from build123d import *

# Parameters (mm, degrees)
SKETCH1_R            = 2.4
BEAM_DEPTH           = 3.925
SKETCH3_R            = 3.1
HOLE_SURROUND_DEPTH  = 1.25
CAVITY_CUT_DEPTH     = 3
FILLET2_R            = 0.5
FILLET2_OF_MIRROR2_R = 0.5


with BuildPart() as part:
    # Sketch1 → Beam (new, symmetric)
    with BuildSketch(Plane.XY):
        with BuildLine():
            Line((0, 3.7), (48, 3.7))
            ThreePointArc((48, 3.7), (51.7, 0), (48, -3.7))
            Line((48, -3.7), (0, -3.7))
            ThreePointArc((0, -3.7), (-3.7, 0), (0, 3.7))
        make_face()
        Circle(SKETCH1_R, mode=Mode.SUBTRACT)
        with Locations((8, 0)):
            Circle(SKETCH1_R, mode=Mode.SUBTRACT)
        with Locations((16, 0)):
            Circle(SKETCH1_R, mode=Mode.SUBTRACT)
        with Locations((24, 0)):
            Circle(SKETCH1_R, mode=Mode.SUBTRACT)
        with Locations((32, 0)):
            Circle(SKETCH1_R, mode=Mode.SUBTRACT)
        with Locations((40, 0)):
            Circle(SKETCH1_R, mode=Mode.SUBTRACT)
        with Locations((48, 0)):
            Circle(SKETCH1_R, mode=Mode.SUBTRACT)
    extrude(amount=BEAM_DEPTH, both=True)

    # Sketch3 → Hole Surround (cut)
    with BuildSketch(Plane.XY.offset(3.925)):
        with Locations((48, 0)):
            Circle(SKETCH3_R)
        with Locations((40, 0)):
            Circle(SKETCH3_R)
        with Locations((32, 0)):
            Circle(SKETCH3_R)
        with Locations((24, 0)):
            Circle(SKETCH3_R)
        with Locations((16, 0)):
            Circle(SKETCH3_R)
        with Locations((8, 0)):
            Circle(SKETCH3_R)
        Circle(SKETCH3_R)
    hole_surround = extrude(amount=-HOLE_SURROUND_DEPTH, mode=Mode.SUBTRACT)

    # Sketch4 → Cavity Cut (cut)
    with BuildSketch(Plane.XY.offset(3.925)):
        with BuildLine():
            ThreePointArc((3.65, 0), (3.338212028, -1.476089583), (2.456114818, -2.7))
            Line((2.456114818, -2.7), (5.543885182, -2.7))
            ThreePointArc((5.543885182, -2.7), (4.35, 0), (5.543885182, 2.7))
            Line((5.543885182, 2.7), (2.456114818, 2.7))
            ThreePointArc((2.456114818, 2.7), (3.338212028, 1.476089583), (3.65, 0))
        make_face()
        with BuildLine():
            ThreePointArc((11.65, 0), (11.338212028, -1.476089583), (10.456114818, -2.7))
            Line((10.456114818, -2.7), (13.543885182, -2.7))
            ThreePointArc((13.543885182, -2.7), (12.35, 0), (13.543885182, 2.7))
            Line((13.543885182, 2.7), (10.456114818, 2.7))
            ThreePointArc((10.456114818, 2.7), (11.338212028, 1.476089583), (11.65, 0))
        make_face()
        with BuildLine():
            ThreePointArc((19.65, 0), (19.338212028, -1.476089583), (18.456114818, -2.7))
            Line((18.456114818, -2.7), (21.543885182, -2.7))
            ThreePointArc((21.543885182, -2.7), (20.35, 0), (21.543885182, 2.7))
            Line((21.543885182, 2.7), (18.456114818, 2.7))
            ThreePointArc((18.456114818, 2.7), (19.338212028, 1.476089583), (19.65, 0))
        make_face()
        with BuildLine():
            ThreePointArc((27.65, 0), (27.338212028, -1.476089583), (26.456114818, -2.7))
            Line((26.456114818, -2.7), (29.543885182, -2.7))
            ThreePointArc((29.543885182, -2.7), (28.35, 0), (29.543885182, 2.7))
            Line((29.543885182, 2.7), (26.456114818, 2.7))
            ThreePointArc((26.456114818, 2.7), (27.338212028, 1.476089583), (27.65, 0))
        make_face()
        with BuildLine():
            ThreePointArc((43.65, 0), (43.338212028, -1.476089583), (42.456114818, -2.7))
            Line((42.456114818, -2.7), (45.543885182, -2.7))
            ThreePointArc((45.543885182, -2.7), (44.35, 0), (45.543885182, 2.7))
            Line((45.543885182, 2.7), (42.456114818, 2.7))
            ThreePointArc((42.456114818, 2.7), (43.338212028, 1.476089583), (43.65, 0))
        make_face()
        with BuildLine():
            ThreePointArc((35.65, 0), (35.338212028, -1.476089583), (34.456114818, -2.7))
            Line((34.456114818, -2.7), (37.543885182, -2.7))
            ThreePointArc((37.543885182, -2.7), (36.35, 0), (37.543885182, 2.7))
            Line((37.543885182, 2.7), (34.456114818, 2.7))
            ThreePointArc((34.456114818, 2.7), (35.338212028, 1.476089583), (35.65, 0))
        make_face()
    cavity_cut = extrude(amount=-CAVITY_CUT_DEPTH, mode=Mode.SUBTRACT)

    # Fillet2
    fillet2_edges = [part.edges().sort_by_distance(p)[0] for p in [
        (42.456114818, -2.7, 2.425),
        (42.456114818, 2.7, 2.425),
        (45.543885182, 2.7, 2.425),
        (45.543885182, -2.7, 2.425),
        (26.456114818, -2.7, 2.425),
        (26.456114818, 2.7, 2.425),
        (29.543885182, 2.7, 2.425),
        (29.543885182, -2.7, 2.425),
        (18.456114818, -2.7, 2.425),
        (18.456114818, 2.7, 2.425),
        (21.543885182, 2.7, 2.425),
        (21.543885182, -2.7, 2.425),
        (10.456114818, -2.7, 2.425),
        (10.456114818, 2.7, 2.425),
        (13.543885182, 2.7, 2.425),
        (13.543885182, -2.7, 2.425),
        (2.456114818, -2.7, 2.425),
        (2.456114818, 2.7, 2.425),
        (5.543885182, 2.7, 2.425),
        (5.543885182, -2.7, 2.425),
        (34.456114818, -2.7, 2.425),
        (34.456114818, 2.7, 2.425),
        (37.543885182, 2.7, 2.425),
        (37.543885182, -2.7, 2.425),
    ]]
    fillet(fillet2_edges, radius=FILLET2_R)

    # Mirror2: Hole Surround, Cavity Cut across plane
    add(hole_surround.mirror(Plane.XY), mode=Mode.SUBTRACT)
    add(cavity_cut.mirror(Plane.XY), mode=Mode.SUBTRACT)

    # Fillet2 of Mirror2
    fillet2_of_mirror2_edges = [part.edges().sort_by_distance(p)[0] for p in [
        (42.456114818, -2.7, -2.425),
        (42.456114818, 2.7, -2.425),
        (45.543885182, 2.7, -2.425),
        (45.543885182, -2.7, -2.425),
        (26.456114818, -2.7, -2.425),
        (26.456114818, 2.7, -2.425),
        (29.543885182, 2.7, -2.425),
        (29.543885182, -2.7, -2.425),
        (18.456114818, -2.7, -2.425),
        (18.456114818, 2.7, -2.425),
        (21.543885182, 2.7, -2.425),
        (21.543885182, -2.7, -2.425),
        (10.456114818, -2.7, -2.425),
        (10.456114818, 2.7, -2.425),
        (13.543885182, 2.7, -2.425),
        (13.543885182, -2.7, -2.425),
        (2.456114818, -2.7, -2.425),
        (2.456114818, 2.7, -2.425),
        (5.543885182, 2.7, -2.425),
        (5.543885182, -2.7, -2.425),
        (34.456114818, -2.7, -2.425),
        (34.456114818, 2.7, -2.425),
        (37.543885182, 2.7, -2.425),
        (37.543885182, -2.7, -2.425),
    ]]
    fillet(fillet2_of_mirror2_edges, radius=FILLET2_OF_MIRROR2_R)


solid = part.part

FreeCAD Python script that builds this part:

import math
import FreeCAD as App
import Part
import Sketcher
from FreeCAD import Vector


def edges_at(feature, points):
    """Names of the edges that pass closest to the given points."""
    edges = feature.Shape.Edges
    near = lambda p: min(range(len(edges)), key=lambda i: edges[i].distToShape(Part.Vertex(*p))[0])
    return sorted({f"Edge{near(p) + 1}" for p in points})

doc = App.newDocument("Part")
params = doc.addObject("Spreadsheet::Sheet", "Params")
for row, (alias, value) in enumerate([
    ("sketch1_diameter", "4.8 mm"),
    ("sketch1_radius", "3.7 mm"),
    ("sketch1_width", "48 mm"),
    ("pad1_length", "7.85 mm"),
    ("sketch2_diameter", "6.2 mm"),
    ("pocket1_length", "1.25 mm"),
    ("sketch3_radius", "3.65 mm"),
    ("pocket2_length", "3 mm"),
    ("fillet_radius", "0.5 mm"),
    ("fillet2_radius", "0.5 mm"),
], start=1):
    params.set(f"A{row}", alias)
    params.set(f"B{row}", "=" + value)
    params.setAlias(f"B{row}", alias)

body = doc.addObject("PartDesign::Body", "Body")

sketch1 = body.newObject("Sketcher::SketchObject", "Sketch")
sketch1.AttachmentSupport = (doc.getObject("XY_Plane"), [""])
sketch1.MapMode = "FlatFace"
sketch1.addGeometry([
    Part.LineSegment(Vector(48, 3.7, 0), Vector(0, 3.7, 0)),
    Part.ArcOfCircle(Part.Circle(Vector(0, 0, 0), Vector(0, 0, 1), 3.7), math.radians(90), math.radians(270)),
    Part.LineSegment(Vector(0, -3.7, 0), Vector(48, -3.7, 0)),
    Part.ArcOfCircle(Part.Circle(Vector(48, 0, 0), Vector(0, 0, 1), 3.7), math.radians(-90), math.radians(90)),
    Part.Circle(Vector(48, 0, 0), Vector(0, 0, 1), 2.4),
    Part.Circle(Vector(40, 0, 0), Vector(0, 0, 1), 2.4),
    Part.Circle(Vector(32, 0, 0), Vector(0, 0, 1), 2.4),
    Part.Circle(Vector(24, 0, 0), Vector(0, 0, 1), 2.4),
    Part.Circle(Vector(16, 0, 0), Vector(0, 0, 1), 2.4),
    Part.Circle(Vector(8, 0, 0), Vector(0, 0, 1), 2.4),
    Part.Circle(Vector(0, 0, 0), Vector(0, 0, 1), 2.4),
], False)
sketch1.addConstraint([
    Sketcher.Constraint("Tangent", 0, 2, 1, 1),
    Sketcher.Constraint("Tangent", 1, 2, 2, 1),
    Sketcher.Constraint("Tangent", 2, 2, 3, 1),
    Sketcher.Constraint("Tangent", 3, 2, 0, 1),
    Sketcher.Constraint("Horizontal", 0),
    Sketcher.Constraint("Horizontal", 2),
    Sketcher.Constraint("Coincident", 1, 3, -1, 1),
    Sketcher.Constraint("Coincident", 10, 3, -1, 1),
    Sketcher.Constraint("Coincident", 4, 3, 3, 3),
    Sketcher.Constraint("Equal", 4, 5),
    Sketcher.Constraint("Equal", 5, 6),
    Sketcher.Constraint("Equal", 6, 7),
    Sketcher.Constraint("Equal", 7, 8),
    Sketcher.Constraint("Equal", 8, 9),
    Sketcher.Constraint("Equal", 9, 10),
    Sketcher.Constraint("PointOnObject", 5, 3, -1),
    Sketcher.Constraint("PointOnObject", 6, 3, -1),
    Sketcher.Constraint("PointOnObject", 7, 3, -1),
    Sketcher.Constraint("PointOnObject", 8, 3, -1),
    Sketcher.Constraint("PointOnObject", 9, 3, -1),
    Sketcher.Constraint("Diameter", 4, 4.8),
    Sketcher.Constraint("Radius", 1, 3.7),
    Sketcher.Constraint("DistanceX", 0, 2, 0, 1, 48.0),
    Sketcher.Constraint("DistanceX", -1, 1, 5, 3, 40.0),
    Sketcher.Constraint("DistanceX", -1, 1, 6, 3, 32.0),
    Sketcher.Constraint("DistanceX", -1, 1, 7, 3, 24.0),
    Sketcher.Constraint("DistanceX", -1, 1, 8, 3, 16.0),
    Sketcher.Constraint("DistanceX", -1, 1, 9, 3, 8.0),
])
sketch1.setExpression("Constraints[20]", "Params.sketch1_diameter")
sketch1.setExpression("Constraints[21]", "Params.sketch1_radius")
sketch1.setExpression("Constraints[22]", "Params.sketch1_width")
pad1 = body.newObject("PartDesign::Pad", "Pad")
pad1.Profile = sketch1
pad1.setExpression("Length", "Params.pad1_length")
pad1.Midplane = True

sketch2 = body.newObject("Sketcher::SketchObject", "Sketch001")
sketch2.AttachmentSupport = (doc.getObject("XY_Plane"), [""])
sketch2.MapMode = "FlatFace"
sketch2.AttachmentOffset = App.Placement(Vector(0, 0, 3.925), App.Rotation())
sketch2.addGeometry([
    Part.Circle(Vector(48, 0, 0), Vector(0, 0, 1), 3.1),
    Part.Circle(Vector(40, 0, 0), Vector(0, 0, 1), 3.1),
    Part.Circle(Vector(32, 0, 0), Vector(0, 0, 1), 3.1),
    Part.Circle(Vector(24, 0, 0), Vector(0, 0, 1), 3.1),
    Part.Circle(Vector(16, 0, 0), Vector(0, 0, 1), 3.1),
    Part.Circle(Vector(8, 0, 0), Vector(0, 0, 1), 3.1),
    Part.Circle(Vector(0, 0, 0), Vector(0, 0, 1), 3.1),
], False)
sketch2.addConstraint([
    Sketcher.Constraint("Coincident", 6, 3, -1, 1),
    Sketcher.Constraint("Equal", 0, 1),
    Sketcher.Constraint("Equal", 1, 2),
    Sketcher.Constraint("Equal", 2, 3),
    Sketcher.Constraint("Equal", 3, 4),
    Sketcher.Constraint("Equal", 4, 5),
    Sketcher.Constraint("Equal", 5, 6),
    Sketcher.Constraint("PointOnObject", 0, 3, -1),
    Sketcher.Constraint("PointOnObject", 1, 3, -1),
    Sketcher.Constraint("PointOnObject", 2, 3, -1),
    Sketcher.Constraint("PointOnObject", 3, 3, -1),
    Sketcher.Constraint("PointOnObject", 4, 3, -1),
    Sketcher.Constraint("PointOnObject", 5, 3, -1),
    Sketcher.Constraint("Diameter", 0, 6.2),
    Sketcher.Constraint("DistanceX", -1, 1, 0, 3, 48.0),
    Sketcher.Constraint("DistanceX", -1, 1, 1, 3, 40.0),
    Sketcher.Constraint("DistanceX", -1, 1, 2, 3, 32.0),
    Sketcher.Constraint("DistanceX", -1, 1, 3, 3, 24.0),
    Sketcher.Constraint("DistanceX", -1, 1, 4, 3, 16.0),
    Sketcher.Constraint("DistanceX", -1, 1, 5, 3, 8.0),
])
sketch2.setExpression("Constraints[13]", "Params.sketch2_diameter")
pocket1 = body.newObject("PartDesign::Pocket", "Pocket")
pocket1.Profile = sketch2
pocket1.setExpression("Length", "Params.pocket1_length")

sketch3 = body.newObject("Sketcher::SketchObject", "Sketch002")
sketch3.AttachmentSupport = (doc.getObject("XY_Plane"), [""])
sketch3.MapMode = "FlatFace"
sketch3.AttachmentOffset = App.Placement(Vector(0, 0, 3.925), App.Rotation())
sketch3.addGeometry([
    Part.ArcOfCircle(Part.Circle(Vector(0, 0, 0), Vector(0, 0, 1), 3.6), math.radians(-48), math.radians(0)),
    Part.LineSegment(Vector(2.5, -2.7, 0), Vector(5.5, -2.7, 0)),
    Part.ArcOfCircle(Part.Circle(Vector(8, 0, 0), Vector(0, 0, 1), 3.6), math.radians(132), math.radians(228)),
    Part.LineSegment(Vector(5.5, 2.7, 0), Vector(2.5, 2.7, 0)),
    Part.ArcOfCircle(Part.Circle(Vector(0, 0, 0), Vector(0, 0, 1), 3.6), math.radians(0), math.radians(48)),
    Part.ArcOfCircle(Part.Circle(Vector(8, 0, 0), Vector(0, 0, 1), 3.6), math.radians(-48), math.radians(0)),
    Part.LineSegment(Vector(10.5, -2.7, 0), Vector(13.5, -2.7, 0)),
    Part.ArcOfCircle(Part.Circle(Vector(16, 0, 0), Vector(0, 0, 1), 3.6), math.radians(132), math.radians(228)),
    Part.LineSegment(Vector(13.5, 2.7, 0), Vector(10.5, 2.7, 0)),
    Part.ArcOfCircle(Part.Circle(Vector(8, 0, 0), Vector(0, 0, 1), 3.6), math.radians(0), math.radians(48)),
    Part.ArcOfCircle(Part.Circle(Vector(16, 0, 0), Vector(0, 0, 1), 3.6), math.radians(-48), math.radians(0)),
    Part.LineSegment(Vector(18.5, -2.7, 0), Vector(21.5, -2.7, 0)),
    Part.ArcOfCircle(Part.Circle(Vector(24, 0, 0), Vector(0, 0, 1), 3.6), math.radians(132), math.radians(228)),
    Part.LineSegment(Vector(21.5, 2.7, 0), Vector(18.5, 2.7, 0)),
    Part.ArcOfCircle(Part.Circle(Vector(16, 0, 0), Vector(0, 0, 1), 3.6), math.radians(0), math.radians(48)),
    Part.ArcOfCircle(Part.Circle(Vector(24, 0, 0), Vector(0, 0, 1), 3.6), math.radians(-48), math.radians(0)),
    Part.LineSegment(Vector(26.5, -2.7, 0), Vector(29.5, -2.7, 0)),
    Part.ArcOfCircle(Part.Circle(Vector(32, 0, 0), Vector(0, 0, 1), 3.6), math.radians(132), math.radians(228)),
    Part.LineSegment(Vector(29.5, 2.7, 0), Vector(26.5, 2.7, 0)),
    Part.ArcOfCircle(Part.Circle(Vector(24, 0, 0), Vector(0, 0, 1), 3.6), math.radians(0), math.radians(48)),
    Part.ArcOfCircle(Part.Circle(Vector(40, 0, 0), Vector(0, 0, 1), 3.6), math.radians(-48), math.radians(0)),
    Part.LineSegment(Vector(42.5, -2.7, 0), Vector(45.5, -2.7, 0)),
    Part.ArcOfCircle(Part.Circle(Vector(48, 0, 0), Vector(0, 0, 1), 3.6), math.radians(132), math.radians(228)),
    Part.LineSegment(Vector(45.5, 2.7, 0), Vector(42.5, 2.7, 0)),
    Part.ArcOfCircle(Part.Circle(Vector(40, 0, 0), Vector(0, 0, 1), 3.6), math.radians(0), math.radians(48)),
    Part.ArcOfCircle(Part.Circle(Vector(32, 0, 0), Vector(0, 0, 1), 3.6), math.radians(-48), math.radians(0)),
    Part.LineSegment(Vector(34.5, -2.7, 0), Vector(37.5, -2.7, 0)),
    Part.ArcOfCircle(Part.Circle(Vector(40, 0, 0), Vector(0, 0, 1), 3.6), math.radians(132), math.radians(228)),
    Part.LineSegment(Vector(37.5, 2.7, 0), Vector(34.5, 2.7, 0)),
    Part.ArcOfCircle(Part.Circle(Vector(32, 0, 0), Vector(0, 0, 1), 3.6), math.radians(0), math.radians(48)),
], False)
sketch3.addConstraint([
    Sketcher.Constraint("Coincident", 0, 1, 1, 1),
    Sketcher.Constraint("Coincident", 1, 2, 2, 2),
    Sketcher.Constraint("Coincident", 2, 1, 3, 1),
    Sketcher.Constraint("Coincident", 3, 2, 4, 2),
    Sketcher.Constraint("Tangent", 4, 1, 0, 2),
    Sketcher.Constraint("Coincident", 5, 1, 6, 1),
    Sketcher.Constraint("Coincident", 6, 2, 7, 2),
    Sketcher.Constraint("Coincident", 7, 1, 8, 1),
    Sketcher.Constraint("Coincident", 8, 2, 9, 2),
    Sketcher.Constraint("Tangent", 9, 1, 5, 2),
    Sketcher.Constraint("Coincident", 10, 1, 11, 1),
    Sketcher.Constraint("Coincident", 11, 2, 12, 2),
    Sketcher.Constraint("Coincident", 12, 1, 13, 1),
    Sketcher.Constraint("Coincident", 13, 2, 14, 2),
    Sketcher.Constraint("Tangent", 14, 1, 10, 2),
    Sketcher.Constraint("Coincident", 15, 1, 16, 1),
    Sketcher.Constraint("Coincident", 16, 2, 17, 2),
    Sketcher.Constraint("Coincident", 17, 1, 18, 1),
    Sketcher.Constraint("Coincident", 18, 2, 19, 2),
    Sketcher.Constraint("Tangent", 19, 1, 15, 2),
    Sketcher.Constraint("Coincident", 20, 1, 21, 1),
    Sketcher.Constraint("Coincident", 21, 2, 22, 2),
    Sketcher.Constraint("Coincident", 22, 1, 23, 1),
    Sketcher.Constraint("Coincident", 23, 2, 24, 2),
    Sketcher.Constraint("Tangent", 24, 1, 20, 2),
    Sketcher.Constraint("Coincident", 25, 1, 26, 1),
    Sketcher.Constraint("Coincident", 26, 2, 27, 2),
    Sketcher.Constraint("Coincident", 27, 1, 28, 1),
    Sketcher.Constraint("Coincident", 28, 2, 29, 2),
    Sketcher.Constraint("Tangent", 29, 1, 25, 2),
    Sketcher.Constraint("Horizontal", 1),
    Sketcher.Constraint("Horizontal", 3),
    Sketcher.Constraint("Horizontal", 6),
    Sketcher.Constraint("Horizontal", 8),
    Sketcher.Constraint("Horizontal", 11),
    Sketcher.Constraint("Horizontal", 13),
    Sketcher.Constraint("Horizontal", 16),
    Sketcher.Constraint("Horizontal", 18),
    Sketcher.Constraint("Horizontal", 21),
    Sketcher.Constraint("Horizontal", 23),
    Sketcher.Constraint("Horizontal", 26),
    Sketcher.Constraint("Horizontal", 28),
    Sketcher.Constraint("Coincident", 0, 3, -1, 1),
    Sketcher.Constraint("Coincident", 5, 3, 2, 3),
    Sketcher.Constraint("Coincident", 10, 3, 7, 3),
    Sketcher.Constraint("Coincident", 15, 3, 12, 3),
    Sketcher.Constraint("Coincident", 25, 3, 17, 3),
    Sketcher.Constraint("Coincident", 27, 3, 20, 3),
    Sketcher.Constraint("Equal", 0, 2),
    Sketcher.Constraint("Equal", 2, 4),
    Sketcher.Constraint("Equal", 4, 5),
    Sketcher.Constraint("Equal", 5, 7),
    Sketcher.Constraint("Equal", 7, 9),
    Sketcher.Constraint("Equal", 9, 10),
    Sketcher.Constraint("Equal", 10, 12),
    Sketcher.Constraint("Equal", 12, 14),
    Sketcher.Constraint("Equal", 14, 15),
    Sketcher.Constraint("Equal", 15, 17),
    Sketcher.Constraint("Equal", 17, 19),
    Sketcher.Constraint("Equal", 19, 20),
    Sketcher.Constraint("Equal", 20, 22),
    Sketcher.Constraint("Equal", 22, 24),
    Sketcher.Constraint("Equal", 24, 25),
    Sketcher.Constraint("Equal", 25, 27),
    Sketcher.Constraint("Equal", 27, 29),
    Sketcher.Constraint("Symmetric", 1, 2, 2, 1, -1),
    Sketcher.Constraint("Symmetric", 6, 2, 7, 1, -1),
    Sketcher.Constraint("Symmetric", 11, 2, 12, 1, -1),
    Sketcher.Constraint("Symmetric", 16, 2, 17, 1, -1),
    Sketcher.Constraint("Symmetric", 21, 2, 22, 1, -1),
    Sketcher.Constraint("Symmetric", 26, 2, 27, 1, -1),
    Sketcher.Constraint("PointOnObject", 4, 1, -1),
    Sketcher.Constraint("PointOnObject", 9, 1, -1),
    Sketcher.Constraint("PointOnObject", 14, 1, -1),
    Sketcher.Constraint("PointOnObject", 19, 1, -1),
    Sketcher.Constraint("PointOnObject", 24, 1, -1),
    Sketcher.Constraint("PointOnObject", 29, 1, -1),
    Sketcher.Constraint("Horizontal", 1, 2, 5, 1),
    Sketcher.Constraint("Horizontal", 6, 2, 10, 1),
    Sketcher.Constraint("Horizontal", 11, 2, 15, 1),
    Sketcher.Constraint("Horizontal", 16, 2, 20, 1),
    Sketcher.Constraint("Horizontal", 21, 2, 25, 1),
    Sketcher.Constraint("Equal", 3, 6),
    Sketcher.Constraint("Equal", 8, 11),
    Sketcher.Constraint("Equal", 13, 16),
    Sketcher.Constraint("Equal", 18, 21),
    Sketcher.Constraint("Equal", 23, 26),
    Sketcher.Constraint("Radius", 0, 3.65),
    Sketcher.Constraint("DistanceX", -1, 1, 2, 3, 8.0),
    Sketcher.Constraint("DistanceY", 0, 1, -1, 1, 2.7),
])
sketch3.setExpression("Constraints[87]", "Params.sketch3_radius")
pocket2 = body.newObject("PartDesign::Pocket", "Pocket001")
pocket2.Profile = sketch3
pocket2.setExpression("Length", "Params.pocket2_length")
doc.recompute()

fillet = body.newObject("PartDesign::Fillet", "Fillet")
fillet.Base = (pocket2, edges_at(pocket2, [
    (42.456, -2.7, 2.425),
    (42.456, 2.7, 2.425),
    (45.544, 2.7, 2.425),
    (45.544, -2.7, 2.425),
    (26.456, -2.7, 2.425),
    (26.456, 2.7, 2.425),
    (29.544, 2.7, 2.425),
    (29.544, -2.7, 2.425),
    (18.456, -2.7, 2.425),
    (18.456, 2.7, 2.425),
    (21.544, 2.7, 2.425),
    (21.544, -2.7, 2.425),
    (10.456, -2.7, 2.425),
    (10.456, 2.7, 2.425),
    (13.544, 2.7, 2.425),
    (13.544, -2.7, 2.425),
    (2.456, -2.7, 2.425),
    (2.456, 2.7, 2.425),
    (5.544, 2.7, 2.425),
    (5.544, -2.7, 2.425),
    (34.456, -2.7, 2.425),
    (34.456, 2.7, 2.425),
    (37.544, 2.7, 2.425),
    (37.544, -2.7, 2.425),
]))
fillet.setExpression("Radius", "Params.fillet_radius")
doc.recompute()

mirrored = body.newObject("PartDesign::Mirrored", "Mirrored")
mirrored.Originals = [pocket1, pocket2]
mirrored.MirrorPlane = (doc.getObject("XY_Plane"), [""])
body.Tip = mirrored
doc.recompute()

fillet2 = body.newObject("PartDesign::Fillet", "Fillet001")
fillet2.Base = (mirrored, edges_at(mirrored, [
    (42.456, -2.7, -2.425),
    (42.456, 2.7, -2.425),
    (45.544, 2.7, -2.425),
    (45.544, -2.7, -2.425),
    (26.456, -2.7, -2.425),
    (26.456, 2.7, -2.425),
    (29.544, 2.7, -2.425),
    (29.544, -2.7, -2.425),
    (18.456, -2.7, -2.425),
    (18.456, 2.7, -2.425),
    (21.544, 2.7, -2.425),
    (21.544, -2.7, -2.425),
    (10.456, -2.7, -2.425),
    (10.456, 2.7, -2.425),
    (13.544, 2.7, -2.425),
    (13.544, -2.7, -2.425),
    (2.456, -2.7, -2.425),
    (2.456, 2.7, -2.425),
    (5.544, 2.7, -2.425),
    (5.544, -2.7, -2.425),
    (34.456, -2.7, -2.425),
    (34.456, 2.7, -2.425),
    (37.544, 2.7, -2.425),
    (37.544, -2.7, -2.425),
]))
fillet2.setExpression("Radius", "Params.fillet2_radius")

doc.recompute()
